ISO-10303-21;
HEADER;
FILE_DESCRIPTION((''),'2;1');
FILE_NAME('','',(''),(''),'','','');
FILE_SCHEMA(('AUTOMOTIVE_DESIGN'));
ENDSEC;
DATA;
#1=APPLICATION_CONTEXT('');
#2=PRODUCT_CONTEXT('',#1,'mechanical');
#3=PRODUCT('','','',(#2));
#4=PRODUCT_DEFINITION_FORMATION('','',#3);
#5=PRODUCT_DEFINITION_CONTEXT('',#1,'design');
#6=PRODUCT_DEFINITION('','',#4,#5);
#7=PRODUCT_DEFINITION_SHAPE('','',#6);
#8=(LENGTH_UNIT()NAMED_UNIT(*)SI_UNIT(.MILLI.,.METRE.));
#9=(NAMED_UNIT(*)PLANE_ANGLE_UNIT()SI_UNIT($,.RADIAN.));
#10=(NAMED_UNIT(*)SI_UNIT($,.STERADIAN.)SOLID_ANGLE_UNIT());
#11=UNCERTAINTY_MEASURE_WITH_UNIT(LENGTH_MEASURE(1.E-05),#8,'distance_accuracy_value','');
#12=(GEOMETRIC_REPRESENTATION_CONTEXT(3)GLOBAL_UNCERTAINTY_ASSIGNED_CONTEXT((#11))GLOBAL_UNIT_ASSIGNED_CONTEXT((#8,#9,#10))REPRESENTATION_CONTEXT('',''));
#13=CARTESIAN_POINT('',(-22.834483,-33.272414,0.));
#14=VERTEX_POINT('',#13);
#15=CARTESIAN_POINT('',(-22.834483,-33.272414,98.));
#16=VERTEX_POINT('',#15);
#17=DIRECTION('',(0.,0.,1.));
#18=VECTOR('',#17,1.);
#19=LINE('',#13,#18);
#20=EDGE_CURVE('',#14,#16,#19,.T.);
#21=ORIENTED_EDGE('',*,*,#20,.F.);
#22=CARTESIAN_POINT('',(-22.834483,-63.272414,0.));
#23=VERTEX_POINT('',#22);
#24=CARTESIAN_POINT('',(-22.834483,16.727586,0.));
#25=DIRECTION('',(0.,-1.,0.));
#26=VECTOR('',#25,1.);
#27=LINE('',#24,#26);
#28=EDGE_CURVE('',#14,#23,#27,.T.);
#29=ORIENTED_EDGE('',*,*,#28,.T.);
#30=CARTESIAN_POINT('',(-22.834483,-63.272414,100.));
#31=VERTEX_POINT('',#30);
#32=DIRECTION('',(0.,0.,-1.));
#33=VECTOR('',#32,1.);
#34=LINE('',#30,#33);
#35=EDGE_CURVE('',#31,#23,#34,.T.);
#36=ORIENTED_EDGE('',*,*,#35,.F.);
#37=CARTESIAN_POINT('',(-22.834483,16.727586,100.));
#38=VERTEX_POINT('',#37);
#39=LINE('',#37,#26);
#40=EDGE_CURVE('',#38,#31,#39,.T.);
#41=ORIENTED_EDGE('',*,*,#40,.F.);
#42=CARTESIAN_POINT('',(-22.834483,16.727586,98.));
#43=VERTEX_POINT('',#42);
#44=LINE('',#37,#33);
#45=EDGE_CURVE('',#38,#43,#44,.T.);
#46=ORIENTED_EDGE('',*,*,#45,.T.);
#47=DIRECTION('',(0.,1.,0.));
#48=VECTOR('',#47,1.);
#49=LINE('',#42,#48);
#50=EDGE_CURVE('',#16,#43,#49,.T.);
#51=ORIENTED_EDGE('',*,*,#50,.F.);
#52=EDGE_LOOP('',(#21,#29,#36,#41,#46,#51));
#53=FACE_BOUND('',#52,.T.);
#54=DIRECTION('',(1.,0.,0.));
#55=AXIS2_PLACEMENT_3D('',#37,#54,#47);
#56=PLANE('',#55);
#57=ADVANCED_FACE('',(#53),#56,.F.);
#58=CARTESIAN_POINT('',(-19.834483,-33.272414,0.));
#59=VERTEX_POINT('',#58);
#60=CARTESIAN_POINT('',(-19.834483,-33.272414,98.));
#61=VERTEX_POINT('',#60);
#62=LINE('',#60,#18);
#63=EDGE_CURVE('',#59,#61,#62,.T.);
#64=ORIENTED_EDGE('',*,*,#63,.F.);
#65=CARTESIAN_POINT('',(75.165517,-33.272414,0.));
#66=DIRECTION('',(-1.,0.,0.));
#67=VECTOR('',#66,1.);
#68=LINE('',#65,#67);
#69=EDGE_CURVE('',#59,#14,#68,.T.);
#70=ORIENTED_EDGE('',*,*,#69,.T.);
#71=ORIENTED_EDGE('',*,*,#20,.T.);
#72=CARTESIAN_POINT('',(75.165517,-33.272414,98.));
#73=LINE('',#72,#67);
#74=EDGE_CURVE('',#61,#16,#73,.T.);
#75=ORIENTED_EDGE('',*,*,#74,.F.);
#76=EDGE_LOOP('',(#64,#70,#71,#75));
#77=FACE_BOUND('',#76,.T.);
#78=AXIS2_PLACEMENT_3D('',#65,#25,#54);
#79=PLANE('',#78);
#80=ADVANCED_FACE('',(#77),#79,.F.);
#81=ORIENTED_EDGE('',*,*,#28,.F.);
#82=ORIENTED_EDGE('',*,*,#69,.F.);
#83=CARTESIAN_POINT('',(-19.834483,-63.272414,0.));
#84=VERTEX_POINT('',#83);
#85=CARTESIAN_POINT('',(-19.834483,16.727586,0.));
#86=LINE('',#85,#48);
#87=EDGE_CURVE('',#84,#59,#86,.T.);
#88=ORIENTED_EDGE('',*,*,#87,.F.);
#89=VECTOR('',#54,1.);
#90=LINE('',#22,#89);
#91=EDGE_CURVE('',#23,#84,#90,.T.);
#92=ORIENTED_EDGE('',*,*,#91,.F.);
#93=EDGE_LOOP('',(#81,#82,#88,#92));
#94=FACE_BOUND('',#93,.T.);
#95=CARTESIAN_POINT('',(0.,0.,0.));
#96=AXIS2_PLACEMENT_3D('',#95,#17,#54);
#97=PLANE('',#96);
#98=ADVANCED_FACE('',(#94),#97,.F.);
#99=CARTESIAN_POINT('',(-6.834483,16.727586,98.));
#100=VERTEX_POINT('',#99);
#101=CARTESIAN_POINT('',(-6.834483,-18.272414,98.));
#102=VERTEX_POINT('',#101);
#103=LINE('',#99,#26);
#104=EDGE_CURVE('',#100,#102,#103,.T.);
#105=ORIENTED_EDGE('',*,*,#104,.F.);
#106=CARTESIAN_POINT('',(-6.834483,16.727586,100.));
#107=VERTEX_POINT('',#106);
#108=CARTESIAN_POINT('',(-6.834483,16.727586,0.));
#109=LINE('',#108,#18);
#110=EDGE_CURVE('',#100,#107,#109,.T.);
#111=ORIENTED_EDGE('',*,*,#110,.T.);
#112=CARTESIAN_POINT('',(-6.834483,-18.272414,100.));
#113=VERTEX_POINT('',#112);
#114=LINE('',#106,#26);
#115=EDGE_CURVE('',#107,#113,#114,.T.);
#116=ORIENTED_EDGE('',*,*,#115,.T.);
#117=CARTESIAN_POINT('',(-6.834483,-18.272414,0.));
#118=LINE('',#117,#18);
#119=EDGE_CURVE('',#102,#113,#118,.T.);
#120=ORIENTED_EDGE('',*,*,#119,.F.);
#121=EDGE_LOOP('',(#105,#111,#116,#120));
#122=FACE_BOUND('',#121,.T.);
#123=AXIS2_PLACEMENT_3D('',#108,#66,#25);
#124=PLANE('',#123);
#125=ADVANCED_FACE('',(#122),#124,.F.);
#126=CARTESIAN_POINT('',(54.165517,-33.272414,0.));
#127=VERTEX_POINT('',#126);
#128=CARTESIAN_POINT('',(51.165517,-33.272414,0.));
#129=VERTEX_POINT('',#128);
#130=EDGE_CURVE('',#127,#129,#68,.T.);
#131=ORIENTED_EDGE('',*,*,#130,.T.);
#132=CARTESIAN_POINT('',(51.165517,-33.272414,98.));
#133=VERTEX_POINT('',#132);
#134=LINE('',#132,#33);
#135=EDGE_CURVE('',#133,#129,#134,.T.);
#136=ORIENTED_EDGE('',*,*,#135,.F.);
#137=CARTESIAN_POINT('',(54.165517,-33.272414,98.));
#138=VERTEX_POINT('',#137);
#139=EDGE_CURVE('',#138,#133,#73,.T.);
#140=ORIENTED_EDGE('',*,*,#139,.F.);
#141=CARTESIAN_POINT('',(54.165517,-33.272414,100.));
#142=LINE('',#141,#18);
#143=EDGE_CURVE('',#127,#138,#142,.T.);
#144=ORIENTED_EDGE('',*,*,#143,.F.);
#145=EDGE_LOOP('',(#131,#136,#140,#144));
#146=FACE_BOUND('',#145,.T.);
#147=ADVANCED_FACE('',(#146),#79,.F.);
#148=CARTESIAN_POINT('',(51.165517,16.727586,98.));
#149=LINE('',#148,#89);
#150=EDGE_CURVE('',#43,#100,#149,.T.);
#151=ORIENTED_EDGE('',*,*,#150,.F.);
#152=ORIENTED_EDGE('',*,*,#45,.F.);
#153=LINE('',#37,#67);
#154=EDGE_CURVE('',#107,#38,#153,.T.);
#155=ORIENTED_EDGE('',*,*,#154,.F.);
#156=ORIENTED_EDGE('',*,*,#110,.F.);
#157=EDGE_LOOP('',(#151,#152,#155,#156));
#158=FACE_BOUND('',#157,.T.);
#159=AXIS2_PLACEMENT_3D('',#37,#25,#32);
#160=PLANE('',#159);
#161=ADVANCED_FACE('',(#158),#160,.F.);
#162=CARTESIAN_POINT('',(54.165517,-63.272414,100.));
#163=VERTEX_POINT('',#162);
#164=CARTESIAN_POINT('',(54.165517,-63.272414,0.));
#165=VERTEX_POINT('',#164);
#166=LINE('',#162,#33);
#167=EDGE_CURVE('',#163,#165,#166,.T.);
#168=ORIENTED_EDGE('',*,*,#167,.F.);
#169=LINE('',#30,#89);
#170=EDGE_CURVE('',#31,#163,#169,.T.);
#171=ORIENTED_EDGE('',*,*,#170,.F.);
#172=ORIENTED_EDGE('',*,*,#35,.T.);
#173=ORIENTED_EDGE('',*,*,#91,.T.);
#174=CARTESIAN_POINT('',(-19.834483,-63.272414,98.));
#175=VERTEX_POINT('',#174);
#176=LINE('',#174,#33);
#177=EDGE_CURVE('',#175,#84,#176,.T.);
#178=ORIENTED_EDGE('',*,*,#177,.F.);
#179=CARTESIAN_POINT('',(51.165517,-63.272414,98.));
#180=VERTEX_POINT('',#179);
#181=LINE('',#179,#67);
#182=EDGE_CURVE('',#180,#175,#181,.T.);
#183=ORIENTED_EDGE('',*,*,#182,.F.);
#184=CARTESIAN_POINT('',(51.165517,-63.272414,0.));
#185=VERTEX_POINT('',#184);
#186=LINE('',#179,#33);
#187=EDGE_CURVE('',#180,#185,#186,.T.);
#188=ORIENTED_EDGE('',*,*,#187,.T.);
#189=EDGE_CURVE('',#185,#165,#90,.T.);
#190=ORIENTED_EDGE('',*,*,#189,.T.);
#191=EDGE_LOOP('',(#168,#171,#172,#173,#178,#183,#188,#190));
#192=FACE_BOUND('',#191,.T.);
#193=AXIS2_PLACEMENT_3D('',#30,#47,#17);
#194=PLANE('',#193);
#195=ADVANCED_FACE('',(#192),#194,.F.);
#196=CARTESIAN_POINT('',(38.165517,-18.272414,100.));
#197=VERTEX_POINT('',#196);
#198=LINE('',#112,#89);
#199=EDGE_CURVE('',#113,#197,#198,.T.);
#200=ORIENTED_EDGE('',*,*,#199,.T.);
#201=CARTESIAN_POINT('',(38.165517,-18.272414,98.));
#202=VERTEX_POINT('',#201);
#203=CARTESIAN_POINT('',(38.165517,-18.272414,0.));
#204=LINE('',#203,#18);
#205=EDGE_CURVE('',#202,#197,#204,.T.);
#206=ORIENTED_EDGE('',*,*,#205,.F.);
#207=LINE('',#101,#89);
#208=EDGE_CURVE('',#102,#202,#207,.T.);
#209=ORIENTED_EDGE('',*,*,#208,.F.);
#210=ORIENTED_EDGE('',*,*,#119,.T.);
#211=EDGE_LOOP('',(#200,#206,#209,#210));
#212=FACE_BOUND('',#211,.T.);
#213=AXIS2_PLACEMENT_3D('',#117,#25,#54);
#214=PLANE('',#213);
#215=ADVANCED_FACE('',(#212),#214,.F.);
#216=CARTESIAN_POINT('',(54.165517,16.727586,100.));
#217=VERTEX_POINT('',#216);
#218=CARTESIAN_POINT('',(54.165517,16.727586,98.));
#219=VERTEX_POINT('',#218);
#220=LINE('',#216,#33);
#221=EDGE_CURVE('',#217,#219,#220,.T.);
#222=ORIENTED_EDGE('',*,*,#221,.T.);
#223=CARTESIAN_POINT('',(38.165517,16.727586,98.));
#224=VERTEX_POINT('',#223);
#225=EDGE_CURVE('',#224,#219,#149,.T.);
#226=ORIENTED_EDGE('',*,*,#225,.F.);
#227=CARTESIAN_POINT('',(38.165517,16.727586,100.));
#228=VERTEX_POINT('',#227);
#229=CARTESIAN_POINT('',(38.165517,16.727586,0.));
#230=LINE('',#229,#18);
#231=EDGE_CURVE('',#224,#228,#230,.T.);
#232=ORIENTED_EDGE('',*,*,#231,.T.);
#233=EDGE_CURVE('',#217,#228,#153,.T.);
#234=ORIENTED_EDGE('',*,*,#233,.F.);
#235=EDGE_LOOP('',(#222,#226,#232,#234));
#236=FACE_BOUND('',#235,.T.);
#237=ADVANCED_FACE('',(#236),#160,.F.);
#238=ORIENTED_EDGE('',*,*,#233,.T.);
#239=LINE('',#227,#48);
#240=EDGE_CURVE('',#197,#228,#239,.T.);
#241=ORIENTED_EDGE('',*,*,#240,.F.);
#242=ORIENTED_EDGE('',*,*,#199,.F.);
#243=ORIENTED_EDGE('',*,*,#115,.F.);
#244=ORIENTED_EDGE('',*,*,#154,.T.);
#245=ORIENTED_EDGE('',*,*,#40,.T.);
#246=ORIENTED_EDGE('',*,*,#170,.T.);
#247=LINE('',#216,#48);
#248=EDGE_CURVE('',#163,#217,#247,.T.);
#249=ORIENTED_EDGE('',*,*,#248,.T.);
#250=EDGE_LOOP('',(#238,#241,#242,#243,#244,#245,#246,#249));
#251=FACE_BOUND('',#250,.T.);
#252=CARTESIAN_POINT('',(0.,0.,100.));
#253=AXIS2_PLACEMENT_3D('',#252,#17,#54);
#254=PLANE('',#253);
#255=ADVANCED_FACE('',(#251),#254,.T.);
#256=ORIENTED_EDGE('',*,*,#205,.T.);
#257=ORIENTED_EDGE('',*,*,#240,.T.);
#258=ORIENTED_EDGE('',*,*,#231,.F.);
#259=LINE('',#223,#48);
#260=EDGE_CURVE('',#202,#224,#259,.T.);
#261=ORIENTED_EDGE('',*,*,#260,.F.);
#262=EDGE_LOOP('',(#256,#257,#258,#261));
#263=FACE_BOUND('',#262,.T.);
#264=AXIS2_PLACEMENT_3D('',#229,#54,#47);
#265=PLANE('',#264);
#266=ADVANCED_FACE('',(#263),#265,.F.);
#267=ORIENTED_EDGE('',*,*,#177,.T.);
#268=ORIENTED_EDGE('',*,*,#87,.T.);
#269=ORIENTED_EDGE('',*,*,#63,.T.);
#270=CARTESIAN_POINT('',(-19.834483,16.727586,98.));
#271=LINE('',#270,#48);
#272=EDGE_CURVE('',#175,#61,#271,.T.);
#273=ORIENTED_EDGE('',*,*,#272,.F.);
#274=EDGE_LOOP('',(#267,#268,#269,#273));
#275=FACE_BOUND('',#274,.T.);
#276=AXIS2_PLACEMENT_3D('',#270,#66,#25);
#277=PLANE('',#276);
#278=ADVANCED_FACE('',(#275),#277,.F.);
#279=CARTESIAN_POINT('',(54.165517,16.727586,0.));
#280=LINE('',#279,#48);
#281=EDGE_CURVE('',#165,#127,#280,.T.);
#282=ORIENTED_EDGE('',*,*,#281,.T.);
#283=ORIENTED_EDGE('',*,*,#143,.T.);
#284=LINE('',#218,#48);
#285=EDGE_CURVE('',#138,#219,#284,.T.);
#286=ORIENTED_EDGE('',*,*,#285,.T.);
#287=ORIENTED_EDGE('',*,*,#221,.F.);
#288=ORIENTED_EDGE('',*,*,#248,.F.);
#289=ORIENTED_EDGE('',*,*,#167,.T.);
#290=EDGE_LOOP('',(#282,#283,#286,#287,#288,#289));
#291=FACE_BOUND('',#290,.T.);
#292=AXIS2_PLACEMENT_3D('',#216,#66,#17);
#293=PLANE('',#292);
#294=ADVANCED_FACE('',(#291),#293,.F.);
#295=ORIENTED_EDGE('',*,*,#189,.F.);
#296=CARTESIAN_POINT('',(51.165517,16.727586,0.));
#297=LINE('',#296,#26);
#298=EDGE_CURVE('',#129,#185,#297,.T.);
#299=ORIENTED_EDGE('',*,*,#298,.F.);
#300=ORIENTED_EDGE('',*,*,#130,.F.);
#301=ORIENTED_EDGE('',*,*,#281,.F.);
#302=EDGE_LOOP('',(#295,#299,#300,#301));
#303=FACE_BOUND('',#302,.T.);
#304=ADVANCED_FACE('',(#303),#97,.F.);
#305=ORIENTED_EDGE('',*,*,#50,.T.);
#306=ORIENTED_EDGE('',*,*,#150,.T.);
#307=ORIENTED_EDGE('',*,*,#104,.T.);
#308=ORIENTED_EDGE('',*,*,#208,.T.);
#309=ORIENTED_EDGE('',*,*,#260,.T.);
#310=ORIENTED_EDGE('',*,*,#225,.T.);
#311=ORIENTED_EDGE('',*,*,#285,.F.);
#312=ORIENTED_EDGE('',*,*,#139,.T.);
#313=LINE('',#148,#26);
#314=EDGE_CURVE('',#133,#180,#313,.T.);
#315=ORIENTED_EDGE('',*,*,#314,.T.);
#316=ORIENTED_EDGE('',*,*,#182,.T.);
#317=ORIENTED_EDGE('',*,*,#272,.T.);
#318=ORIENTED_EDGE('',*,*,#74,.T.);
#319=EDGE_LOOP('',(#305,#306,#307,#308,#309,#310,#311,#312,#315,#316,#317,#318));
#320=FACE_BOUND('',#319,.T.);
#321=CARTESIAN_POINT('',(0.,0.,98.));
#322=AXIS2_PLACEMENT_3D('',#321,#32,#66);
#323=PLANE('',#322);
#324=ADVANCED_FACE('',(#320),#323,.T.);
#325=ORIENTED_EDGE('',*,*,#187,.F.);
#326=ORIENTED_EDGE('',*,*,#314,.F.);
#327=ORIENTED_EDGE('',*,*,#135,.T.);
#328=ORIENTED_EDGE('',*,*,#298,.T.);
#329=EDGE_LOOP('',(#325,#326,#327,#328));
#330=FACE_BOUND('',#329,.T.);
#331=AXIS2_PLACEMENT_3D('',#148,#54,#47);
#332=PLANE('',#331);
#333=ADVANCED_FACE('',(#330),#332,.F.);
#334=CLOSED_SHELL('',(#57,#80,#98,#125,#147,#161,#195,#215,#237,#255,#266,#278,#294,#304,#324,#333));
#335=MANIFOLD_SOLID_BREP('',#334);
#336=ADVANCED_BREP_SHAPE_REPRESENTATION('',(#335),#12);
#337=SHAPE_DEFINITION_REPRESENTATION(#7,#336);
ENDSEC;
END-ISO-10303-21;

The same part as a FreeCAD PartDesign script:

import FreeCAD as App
import Part
import Sketcher

V = App.Vector


def add_polygon(sketch, points):
    """Adds a closed chain of lines whose ends are joined by coincident constraints."""
    first, n = sketch.GeometryCount, len(points)
    for a, b in zip(points, points[1:] + points[:1]):
        sketch.addGeometry(Part.LineSegment(App.Vector(*a, 0), App.Vector(*b, 0)), False)
    for i in range(n):
        sketch.addConstraint(Sketcher.Constraint("Coincident", first + i, 2, first + (i + 1) % n, 1))

doc = App.newDocument("Part")
body = doc.addObject("PartDesign::Body", "Body")

sketch1 = doc.addObject("Sketcher::SketchObject", "Sketch")
body.addObject(sketch1)
sketch1.AttachmentSupport = (doc.XY_Plane, [""])
sketch1.MapMode = "FlatFace"
add_polygon(sketch1, [(-22.834483, 16.727586), (-22.834483, -63.272414), (54.165517, -63.272414), (54.165517, 16.727586)])
sketch1.addConstraint(Sketcher.Constraint("Vertical", 0))
sketch1.addConstraint(Sketcher.Constraint("Horizontal", 1))
sketch1.addConstraint(Sketcher.Constraint("Vertical", 2))
sketch1.addConstraint(Sketcher.Constraint("Horizontal", 3))
sketch1.addConstraint(Sketcher.Constraint("DistanceX", 1, 1, 1, 2, 77.0))
sketch1.addConstraint(Sketcher.Constraint("DistanceY", 0, 2, 0, 1, 80.0))
sketch1.addConstraint(Sketcher.Constraint("DistanceX", 0, 2, -1, 1, 22.834483))
sketch1.addConstraint(Sketcher.Constraint("DistanceY", 0, 2, -1, 1, 63.272414))
pad1 = doc.addObject("PartDesign::Pad", "Pad")
body.addObject(pad1)
pad1.Profile = sketch1
pad1.Length = 100

sketch2 = doc.addObject("Sketcher::SketchObject", "Sketch001")
body.addObject(sketch2)
sketch2.AttachmentSupport = (doc.XY_Plane, [""])
sketch2.MapMode = "FlatFace"
sketch2.AttachmentOffset = App.Placement(V(0, 0, 100), App.Rotation())
add_polygon(sketch2, [(-6.834483, 16.727586), (-6.834483, -18.272414), (38.165517, -18.272414), (38.165517, 16.727586)])
sketch2.addConstraint(Sketcher.Constraint("Vertical", 0))
sketch2.addConstraint(Sketcher.Constraint("Horizontal", 1))
sketch2.addConstraint(Sketcher.Constraint("Vertical", 2))
sketch2.addConstraint(Sketcher.Constraint("Horizontal", 3))
sketch2.addConstraint(Sketcher.Constraint("DistanceX", 1, 1, 1, 2, 45.0))
sketch2.addConstraint(Sketcher.Constraint("DistanceY", 0, 2, 0, 1, 35.0))
sketch2.addConstraint(Sketcher.Constraint("DistanceX", 0, 2, -1, 1, 6.834483))
sketch2.addConstraint(Sketcher.Constraint("DistanceY", 0, 2, -1, 1, 18.272414))
pocket1 = doc.addObject("PartDesign::Pocket", "Pocket")
body.addObject(pocket1)
pocket1.Profile = sketch2
pocket1.Length = 100

sketch3 = doc.addObject("Sketcher::SketchObject", "Sketch002")
body.addObject(sketch3)
sketch3.AttachmentSupport = (doc.XY_Plane, [""])
sketch3.MapMode = "FlatFace"
add_polygon(sketch3, [(51.165517, 16.727586), (51.165517, -63.272414), (-19.834483, -63.272414), (-19.834483, 16.727586)])
sketch3.addConstraint(Sketcher.Constraint("Vertical", 0))
sketch3.addConstraint(Sketcher.Constraint("Horizontal", 1))
sketch3.addConstraint(Sketcher.Constraint("Vertical", 2))
sketch3.addConstraint(Sketcher.Constraint("Horizontal", 3))
sketch3.addConstraint(Sketcher.Constraint("DistanceX", 1, 2, 1, 1, 71.0))
sketch3.addConstraint(Sketcher.Constraint("DistanceY", 0, 2, 0, 1, 80.0))
sketch3.addConstraint(Sketcher.Constraint("DistanceX", -1, 1, 0, 2, 51.165517))
sketch3.addConstraint(Sketcher.Constraint("DistanceY", 0, 2, -1, 1, 63.272414))
pocket2 = doc.addObject("PartDesign::Pocket", "Pocket001")
body.addObject(pocket2)
pocket2.Profile = sketch3
pocket2.Length = 98
pocket2.Reversed = True

sketch4 = doc.addObject("Sketcher::SketchObject", "Sketch003")
body.addObject(sketch4)
sketch4.AttachmentSupport = (doc.YZ_Plane, [""])
sketch4.MapMode = "FlatFace"
sketch4.AttachmentOffset = App.Placement(V(0, 0, -22.834483), App.Rotation())
add_polygon(sketch4, [(16.727586, 0), (-33.272414, 0), (-33.272414, 98), (16.727586, 98)])
sketch4.addConstraint(Sketcher.Constraint("Horizontal", 0))
sketch4.addConstraint(Sketcher.Constraint("Vertical", 1))
sketch4.addConstraint(Sketcher.Constraint("Horizontal", 2))
sketch4.addConstraint(Sketcher.Constraint("Vertical", 3))
sketch4.addConstraint(Sketcher.Constraint("PointOnObject", 0, 2, -1))
sketch4.addConstraint(Sketcher.Constraint("DistanceX", 0, 2, 0, 1, 50.0))
sketch4.addConstraint(Sketcher.Constraint("DistanceY", 1, 1, 1, 2, 98.0))
sketch4.addConstraint(Sketcher.Constraint("DistanceX", 0, 2, -1, 1, 33.272414))
pocket3 = doc.addObject("PartDesign::Pocket", "Pocket002")
body.addObject(pocket3)
pocket3.Profile = sketch4
pocket3.Length = 98
pocket3.Reversed = True

doc.recompute()
